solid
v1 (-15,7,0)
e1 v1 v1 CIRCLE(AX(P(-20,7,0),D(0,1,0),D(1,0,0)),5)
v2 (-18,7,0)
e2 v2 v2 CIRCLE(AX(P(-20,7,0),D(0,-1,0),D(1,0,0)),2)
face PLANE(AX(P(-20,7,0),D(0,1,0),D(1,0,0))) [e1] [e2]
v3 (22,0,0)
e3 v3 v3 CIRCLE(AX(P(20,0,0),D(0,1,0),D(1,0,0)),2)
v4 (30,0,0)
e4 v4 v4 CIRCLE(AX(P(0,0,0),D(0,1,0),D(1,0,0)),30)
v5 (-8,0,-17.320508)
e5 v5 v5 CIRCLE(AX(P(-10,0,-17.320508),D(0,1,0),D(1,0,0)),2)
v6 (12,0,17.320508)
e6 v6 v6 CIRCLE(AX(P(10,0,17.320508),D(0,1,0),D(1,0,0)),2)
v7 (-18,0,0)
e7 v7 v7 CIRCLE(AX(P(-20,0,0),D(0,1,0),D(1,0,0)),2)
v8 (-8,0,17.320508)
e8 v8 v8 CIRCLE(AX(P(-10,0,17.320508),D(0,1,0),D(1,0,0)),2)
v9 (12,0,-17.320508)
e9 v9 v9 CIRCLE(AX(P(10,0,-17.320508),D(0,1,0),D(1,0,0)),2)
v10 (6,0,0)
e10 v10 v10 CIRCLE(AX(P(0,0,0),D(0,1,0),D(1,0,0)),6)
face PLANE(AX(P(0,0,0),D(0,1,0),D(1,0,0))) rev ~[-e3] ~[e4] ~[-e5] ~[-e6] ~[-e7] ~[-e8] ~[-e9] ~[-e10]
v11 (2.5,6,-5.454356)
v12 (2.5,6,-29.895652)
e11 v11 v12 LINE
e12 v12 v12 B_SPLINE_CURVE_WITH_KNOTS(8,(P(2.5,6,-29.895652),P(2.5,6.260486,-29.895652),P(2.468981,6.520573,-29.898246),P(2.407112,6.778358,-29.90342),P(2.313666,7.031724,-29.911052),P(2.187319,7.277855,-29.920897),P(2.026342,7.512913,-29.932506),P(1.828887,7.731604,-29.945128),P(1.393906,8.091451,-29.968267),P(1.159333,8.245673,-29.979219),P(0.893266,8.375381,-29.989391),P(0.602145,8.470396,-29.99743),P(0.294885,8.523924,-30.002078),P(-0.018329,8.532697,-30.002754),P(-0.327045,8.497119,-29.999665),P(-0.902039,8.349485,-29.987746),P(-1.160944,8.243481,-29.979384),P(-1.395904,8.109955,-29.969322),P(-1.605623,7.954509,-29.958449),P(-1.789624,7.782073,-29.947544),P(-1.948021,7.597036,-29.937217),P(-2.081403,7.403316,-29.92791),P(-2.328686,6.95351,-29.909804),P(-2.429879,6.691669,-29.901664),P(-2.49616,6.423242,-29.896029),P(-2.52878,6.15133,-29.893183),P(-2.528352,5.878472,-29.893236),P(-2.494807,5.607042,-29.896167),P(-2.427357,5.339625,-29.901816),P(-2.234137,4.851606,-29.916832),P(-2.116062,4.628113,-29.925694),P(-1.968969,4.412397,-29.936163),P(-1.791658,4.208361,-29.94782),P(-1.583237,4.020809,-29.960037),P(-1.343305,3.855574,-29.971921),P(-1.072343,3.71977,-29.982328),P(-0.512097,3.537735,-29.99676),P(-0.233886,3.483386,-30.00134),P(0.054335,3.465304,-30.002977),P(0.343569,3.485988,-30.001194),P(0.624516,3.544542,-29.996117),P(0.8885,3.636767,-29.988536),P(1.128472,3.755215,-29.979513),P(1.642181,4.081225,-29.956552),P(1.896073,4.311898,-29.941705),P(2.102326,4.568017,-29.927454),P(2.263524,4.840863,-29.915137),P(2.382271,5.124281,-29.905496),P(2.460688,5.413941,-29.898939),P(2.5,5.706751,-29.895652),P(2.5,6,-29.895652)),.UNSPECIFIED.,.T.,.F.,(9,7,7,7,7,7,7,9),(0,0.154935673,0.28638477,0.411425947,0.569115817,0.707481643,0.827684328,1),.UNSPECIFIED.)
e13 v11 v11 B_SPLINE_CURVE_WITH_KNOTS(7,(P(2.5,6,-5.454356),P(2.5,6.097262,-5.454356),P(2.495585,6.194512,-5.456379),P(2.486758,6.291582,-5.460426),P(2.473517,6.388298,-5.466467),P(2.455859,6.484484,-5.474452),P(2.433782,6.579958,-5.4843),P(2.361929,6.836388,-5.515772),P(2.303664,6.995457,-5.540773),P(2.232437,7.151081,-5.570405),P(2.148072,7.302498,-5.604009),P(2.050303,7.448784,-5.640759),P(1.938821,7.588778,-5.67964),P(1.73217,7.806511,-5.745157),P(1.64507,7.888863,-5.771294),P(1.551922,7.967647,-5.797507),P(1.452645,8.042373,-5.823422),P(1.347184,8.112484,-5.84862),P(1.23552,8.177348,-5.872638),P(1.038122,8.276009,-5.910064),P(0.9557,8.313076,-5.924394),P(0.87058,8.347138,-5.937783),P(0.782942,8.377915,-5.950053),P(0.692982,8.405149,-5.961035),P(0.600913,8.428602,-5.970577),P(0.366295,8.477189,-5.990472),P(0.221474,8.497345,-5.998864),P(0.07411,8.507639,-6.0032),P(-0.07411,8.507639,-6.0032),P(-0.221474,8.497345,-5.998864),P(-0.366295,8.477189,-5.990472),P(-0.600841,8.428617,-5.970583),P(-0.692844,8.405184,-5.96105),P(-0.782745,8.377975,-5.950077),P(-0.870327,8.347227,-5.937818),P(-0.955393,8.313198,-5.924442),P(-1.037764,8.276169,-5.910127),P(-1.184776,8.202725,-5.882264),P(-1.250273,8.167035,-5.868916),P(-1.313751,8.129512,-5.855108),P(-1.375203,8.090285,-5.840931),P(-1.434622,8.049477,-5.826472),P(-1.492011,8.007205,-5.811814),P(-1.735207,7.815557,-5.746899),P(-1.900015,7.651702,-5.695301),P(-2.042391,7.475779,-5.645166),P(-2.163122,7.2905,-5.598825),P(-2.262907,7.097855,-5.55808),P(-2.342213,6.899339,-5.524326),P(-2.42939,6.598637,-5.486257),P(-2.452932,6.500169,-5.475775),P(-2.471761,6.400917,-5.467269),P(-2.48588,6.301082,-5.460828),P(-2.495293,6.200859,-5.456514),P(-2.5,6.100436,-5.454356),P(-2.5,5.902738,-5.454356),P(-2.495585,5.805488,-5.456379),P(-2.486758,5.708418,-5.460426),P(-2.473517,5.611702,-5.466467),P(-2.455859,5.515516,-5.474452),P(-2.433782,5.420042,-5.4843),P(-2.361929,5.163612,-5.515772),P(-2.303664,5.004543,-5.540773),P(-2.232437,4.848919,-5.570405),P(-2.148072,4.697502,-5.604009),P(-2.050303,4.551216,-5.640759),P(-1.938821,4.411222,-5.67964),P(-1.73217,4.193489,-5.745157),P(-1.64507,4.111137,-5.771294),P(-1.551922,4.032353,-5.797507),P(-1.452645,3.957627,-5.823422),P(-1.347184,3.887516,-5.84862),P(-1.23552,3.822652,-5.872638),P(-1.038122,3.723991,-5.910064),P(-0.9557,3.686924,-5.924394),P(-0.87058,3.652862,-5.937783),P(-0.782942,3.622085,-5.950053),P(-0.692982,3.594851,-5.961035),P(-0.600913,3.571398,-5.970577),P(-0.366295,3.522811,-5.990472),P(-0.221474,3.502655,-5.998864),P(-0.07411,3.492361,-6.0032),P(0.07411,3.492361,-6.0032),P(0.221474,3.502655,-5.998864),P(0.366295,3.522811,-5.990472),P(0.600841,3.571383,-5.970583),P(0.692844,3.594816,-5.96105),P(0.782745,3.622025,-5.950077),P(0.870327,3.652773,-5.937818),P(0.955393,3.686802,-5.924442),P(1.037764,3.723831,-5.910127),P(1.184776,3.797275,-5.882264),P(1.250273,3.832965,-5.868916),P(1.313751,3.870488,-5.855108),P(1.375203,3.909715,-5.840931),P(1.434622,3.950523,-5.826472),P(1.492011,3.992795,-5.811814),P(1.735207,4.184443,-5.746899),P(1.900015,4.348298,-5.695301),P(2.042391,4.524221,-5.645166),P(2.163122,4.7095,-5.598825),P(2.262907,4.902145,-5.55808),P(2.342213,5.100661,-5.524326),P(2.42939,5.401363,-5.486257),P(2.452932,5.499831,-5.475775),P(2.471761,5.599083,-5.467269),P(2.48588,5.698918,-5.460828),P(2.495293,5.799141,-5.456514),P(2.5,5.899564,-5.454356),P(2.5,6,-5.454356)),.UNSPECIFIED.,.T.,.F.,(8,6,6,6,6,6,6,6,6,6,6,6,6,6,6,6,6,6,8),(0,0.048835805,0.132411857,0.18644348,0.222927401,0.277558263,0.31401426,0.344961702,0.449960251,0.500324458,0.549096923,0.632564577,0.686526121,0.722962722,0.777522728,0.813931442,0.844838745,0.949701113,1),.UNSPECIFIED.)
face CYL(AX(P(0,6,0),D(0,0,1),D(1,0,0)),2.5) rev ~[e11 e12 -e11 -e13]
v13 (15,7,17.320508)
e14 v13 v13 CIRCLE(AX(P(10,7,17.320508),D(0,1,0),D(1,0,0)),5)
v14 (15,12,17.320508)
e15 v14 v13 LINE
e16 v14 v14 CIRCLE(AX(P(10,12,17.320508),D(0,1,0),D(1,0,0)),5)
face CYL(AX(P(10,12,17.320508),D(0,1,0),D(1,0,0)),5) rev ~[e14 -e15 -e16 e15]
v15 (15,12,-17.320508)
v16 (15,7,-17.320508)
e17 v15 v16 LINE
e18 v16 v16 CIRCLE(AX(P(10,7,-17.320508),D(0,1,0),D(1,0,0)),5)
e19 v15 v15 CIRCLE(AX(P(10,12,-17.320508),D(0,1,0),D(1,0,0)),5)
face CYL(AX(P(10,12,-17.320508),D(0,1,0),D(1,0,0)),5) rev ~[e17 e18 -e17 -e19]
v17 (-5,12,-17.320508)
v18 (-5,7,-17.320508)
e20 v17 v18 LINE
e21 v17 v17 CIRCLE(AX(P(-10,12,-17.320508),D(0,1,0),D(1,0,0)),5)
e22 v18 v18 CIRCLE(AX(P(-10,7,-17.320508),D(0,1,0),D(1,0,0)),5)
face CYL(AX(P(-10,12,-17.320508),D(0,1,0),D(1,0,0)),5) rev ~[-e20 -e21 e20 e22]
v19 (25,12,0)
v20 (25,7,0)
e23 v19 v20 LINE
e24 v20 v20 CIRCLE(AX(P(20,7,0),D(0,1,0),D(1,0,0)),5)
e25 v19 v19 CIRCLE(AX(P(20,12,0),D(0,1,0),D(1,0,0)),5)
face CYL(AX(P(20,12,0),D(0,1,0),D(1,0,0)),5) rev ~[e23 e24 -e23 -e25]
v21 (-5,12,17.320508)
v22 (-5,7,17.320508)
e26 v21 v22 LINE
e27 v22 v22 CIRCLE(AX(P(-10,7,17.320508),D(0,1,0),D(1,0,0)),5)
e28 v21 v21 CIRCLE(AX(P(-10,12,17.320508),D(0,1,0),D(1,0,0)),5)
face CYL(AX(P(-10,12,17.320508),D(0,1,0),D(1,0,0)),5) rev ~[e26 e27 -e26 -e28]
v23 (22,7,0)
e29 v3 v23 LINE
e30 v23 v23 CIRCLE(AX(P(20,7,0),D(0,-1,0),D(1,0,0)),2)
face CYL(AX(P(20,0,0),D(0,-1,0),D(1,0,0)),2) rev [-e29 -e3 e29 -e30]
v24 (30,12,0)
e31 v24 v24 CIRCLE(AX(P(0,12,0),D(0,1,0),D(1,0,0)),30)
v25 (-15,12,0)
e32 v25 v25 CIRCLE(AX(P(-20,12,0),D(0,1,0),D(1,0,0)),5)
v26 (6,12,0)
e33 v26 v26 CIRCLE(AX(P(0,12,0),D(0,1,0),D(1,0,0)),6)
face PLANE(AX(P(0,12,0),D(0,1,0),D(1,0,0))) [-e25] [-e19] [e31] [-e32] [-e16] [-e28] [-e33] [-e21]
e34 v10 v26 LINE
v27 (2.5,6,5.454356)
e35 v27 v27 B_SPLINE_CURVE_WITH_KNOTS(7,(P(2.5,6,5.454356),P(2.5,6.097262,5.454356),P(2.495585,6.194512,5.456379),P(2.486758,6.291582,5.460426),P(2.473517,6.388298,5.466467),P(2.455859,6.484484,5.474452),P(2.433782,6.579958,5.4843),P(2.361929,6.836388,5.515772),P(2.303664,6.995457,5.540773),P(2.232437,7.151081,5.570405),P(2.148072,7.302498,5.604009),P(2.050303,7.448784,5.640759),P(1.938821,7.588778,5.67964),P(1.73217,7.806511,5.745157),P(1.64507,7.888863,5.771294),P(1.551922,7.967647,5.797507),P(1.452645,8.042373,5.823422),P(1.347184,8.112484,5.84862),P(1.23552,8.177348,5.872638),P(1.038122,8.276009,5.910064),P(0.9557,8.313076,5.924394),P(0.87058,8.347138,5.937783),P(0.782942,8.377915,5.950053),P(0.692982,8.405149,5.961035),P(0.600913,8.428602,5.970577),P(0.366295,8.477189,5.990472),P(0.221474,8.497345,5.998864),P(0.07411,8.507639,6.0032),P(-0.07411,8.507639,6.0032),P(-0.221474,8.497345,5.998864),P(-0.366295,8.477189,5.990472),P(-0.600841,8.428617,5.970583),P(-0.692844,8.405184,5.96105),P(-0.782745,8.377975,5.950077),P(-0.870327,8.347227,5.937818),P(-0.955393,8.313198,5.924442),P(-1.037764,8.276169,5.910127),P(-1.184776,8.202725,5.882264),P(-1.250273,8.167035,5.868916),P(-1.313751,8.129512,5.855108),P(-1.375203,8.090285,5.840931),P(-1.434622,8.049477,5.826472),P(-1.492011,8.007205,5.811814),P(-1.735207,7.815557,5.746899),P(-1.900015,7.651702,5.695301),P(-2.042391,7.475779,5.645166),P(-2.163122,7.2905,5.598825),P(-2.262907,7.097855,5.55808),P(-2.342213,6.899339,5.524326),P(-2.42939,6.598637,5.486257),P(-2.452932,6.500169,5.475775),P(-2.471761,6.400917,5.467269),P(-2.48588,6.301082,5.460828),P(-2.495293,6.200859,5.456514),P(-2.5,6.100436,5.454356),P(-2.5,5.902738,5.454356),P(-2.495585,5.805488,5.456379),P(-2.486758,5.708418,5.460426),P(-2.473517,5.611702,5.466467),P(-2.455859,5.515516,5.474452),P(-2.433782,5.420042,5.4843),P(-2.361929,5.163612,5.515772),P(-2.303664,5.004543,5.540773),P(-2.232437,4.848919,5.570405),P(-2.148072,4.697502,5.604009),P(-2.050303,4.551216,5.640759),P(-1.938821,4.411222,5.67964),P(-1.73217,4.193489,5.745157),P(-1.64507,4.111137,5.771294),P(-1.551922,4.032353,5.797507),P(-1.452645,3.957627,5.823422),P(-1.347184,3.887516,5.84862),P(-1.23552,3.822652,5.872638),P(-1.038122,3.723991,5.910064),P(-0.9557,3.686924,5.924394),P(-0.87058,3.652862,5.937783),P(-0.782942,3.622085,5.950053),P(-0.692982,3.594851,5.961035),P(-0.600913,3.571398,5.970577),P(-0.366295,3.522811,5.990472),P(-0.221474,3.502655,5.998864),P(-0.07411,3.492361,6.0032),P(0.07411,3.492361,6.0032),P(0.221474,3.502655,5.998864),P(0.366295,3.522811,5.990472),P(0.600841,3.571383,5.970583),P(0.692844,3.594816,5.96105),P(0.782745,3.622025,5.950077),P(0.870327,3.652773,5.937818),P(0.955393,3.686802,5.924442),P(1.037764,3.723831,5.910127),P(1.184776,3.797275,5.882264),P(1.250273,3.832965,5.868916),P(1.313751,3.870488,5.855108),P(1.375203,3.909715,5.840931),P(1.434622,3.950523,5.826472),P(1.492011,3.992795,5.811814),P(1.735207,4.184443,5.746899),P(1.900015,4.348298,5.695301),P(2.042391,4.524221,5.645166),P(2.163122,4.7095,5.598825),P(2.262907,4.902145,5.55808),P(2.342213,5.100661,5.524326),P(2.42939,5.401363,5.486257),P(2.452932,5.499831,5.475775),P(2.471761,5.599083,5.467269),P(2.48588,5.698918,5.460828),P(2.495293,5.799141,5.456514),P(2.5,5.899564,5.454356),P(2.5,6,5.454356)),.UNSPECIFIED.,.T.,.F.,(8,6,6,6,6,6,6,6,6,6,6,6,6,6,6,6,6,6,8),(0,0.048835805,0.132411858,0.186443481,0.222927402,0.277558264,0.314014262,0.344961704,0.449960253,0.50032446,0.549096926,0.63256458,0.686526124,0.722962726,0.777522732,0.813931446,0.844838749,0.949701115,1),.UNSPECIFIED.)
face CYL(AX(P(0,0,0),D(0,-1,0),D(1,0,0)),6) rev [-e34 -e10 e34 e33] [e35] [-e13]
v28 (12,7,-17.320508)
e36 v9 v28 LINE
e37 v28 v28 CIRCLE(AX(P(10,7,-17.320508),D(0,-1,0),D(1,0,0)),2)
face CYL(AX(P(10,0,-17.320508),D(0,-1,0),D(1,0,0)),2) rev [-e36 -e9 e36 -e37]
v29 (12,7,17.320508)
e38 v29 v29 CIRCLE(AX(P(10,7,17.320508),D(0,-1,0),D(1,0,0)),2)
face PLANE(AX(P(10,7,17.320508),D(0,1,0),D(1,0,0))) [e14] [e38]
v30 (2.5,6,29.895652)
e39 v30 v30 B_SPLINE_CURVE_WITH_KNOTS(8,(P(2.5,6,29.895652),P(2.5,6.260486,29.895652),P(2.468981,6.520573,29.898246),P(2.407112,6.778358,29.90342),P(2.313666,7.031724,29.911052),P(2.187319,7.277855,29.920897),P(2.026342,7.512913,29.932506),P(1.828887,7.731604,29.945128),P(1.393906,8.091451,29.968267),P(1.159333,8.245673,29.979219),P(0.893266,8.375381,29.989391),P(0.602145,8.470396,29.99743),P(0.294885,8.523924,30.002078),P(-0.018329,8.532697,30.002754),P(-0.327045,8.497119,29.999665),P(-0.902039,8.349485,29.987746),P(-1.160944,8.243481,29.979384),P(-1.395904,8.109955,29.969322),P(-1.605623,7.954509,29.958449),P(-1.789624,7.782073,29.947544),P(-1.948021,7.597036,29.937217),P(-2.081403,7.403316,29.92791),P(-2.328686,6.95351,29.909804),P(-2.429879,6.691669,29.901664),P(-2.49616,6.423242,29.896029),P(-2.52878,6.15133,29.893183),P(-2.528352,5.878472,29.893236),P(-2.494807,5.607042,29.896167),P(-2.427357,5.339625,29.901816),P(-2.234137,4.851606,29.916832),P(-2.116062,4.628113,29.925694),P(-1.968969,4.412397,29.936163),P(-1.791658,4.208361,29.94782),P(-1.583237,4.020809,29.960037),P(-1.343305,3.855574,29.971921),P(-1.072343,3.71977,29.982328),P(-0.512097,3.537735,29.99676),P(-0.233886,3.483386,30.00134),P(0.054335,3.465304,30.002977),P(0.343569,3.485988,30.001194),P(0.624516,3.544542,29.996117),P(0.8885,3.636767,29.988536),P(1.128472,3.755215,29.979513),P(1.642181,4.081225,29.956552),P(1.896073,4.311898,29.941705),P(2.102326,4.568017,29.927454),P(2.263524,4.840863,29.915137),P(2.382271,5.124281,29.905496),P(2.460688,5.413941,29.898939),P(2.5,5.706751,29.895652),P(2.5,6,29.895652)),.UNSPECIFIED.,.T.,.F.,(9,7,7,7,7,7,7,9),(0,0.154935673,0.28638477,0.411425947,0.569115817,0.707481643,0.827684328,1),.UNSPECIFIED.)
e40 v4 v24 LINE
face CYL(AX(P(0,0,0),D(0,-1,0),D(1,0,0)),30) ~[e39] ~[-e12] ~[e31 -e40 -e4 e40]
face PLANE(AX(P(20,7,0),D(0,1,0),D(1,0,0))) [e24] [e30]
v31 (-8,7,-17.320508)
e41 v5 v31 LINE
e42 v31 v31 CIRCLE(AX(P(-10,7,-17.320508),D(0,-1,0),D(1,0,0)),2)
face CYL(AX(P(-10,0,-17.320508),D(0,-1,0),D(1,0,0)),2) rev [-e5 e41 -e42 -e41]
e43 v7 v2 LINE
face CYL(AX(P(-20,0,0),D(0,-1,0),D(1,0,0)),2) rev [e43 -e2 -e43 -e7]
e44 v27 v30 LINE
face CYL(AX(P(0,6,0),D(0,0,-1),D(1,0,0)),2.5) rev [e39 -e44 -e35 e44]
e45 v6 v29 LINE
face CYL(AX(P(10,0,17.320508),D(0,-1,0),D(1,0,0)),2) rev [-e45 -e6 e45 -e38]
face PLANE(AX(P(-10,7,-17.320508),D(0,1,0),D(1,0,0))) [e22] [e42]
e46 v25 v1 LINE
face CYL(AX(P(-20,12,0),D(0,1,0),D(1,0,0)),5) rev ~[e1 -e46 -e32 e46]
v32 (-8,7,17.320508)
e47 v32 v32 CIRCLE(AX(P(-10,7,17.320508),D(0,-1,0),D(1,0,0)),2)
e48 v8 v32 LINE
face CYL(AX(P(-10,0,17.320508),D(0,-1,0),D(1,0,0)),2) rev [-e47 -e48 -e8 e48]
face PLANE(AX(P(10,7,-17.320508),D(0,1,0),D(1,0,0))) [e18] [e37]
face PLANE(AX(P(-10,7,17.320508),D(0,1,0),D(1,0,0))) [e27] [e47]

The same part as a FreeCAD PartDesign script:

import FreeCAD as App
import Part
import Sketcher
Q = App.Units.Quantity

doc = App.newDocument("Part")
params = doc.addObject("Spreadsheet::Sheet", "Params")
for row, (alias, value) in enumerate([
    ("sketch1_diameter", "60 mm"),
    ("sketch1_diameter2", "4 mm"),
    ("sketch1_diameter3", "12 mm"),
    ("pad1_length", "12 mm"),
    ("sketch2_diameter", "5 mm"),
    ("sketch3_diameter", "10 mm"),
    ("pocket2_length", "5 mm"),
], start=1):
    params.set(f"A{row}", alias)
    params.set(f"B{row}", "=" + value)
    params.setAlias(f"B{row}", alias)

body = doc.addObject("PartDesign::Body", "Body")

# Sketch on XZ plane
sketch1 = body.newObject("Sketcher::SketchObject", "Sketch")
sketch1.AttachmentSupport = (doc.getObject("XZ_Plane"), [""])
sketch1.MapMode = "FlatFace"
sketch1.addGeometry([
    Part.Circle(App.Vector(0, 0, 0), App.Vector(0, 0, 1), 30),  # 0
    Part.Circle(App.Vector(-10, 17.3, 0), App.Vector(0, 0, 1), 2),  # 1
    Part.Circle(App.Vector(10, 17.3, 0), App.Vector(0, 0, 1), 2),  # 2
    Part.Circle(App.Vector(-20, 0, 0), App.Vector(0, 0, 1), 2),  # 3
    Part.Circle(App.Vector(-10, -17.3, 0), App.Vector(0, 0, 1), 2),  # 4
    Part.Circle(App.Vector(0, 0, 0), App.Vector(0, 0, 1), 6),  # 5
    Part.Circle(App.Vector(20, 0, 0), App.Vector(0, 0, 1), 2),  # 6
    Part.Circle(App.Vector(10, -17.3, 0), App.Vector(0, 0, 1), 2),  # 7
], False)
sketch1.addConstraint([
    Sketcher.Constraint("Coincident", 0, 3, -1, 1),
    Sketcher.Constraint("Coincident", 5, 3, -1, 1),
    Sketcher.Constraint("Equal", 1, 2),
    Sketcher.Constraint("Equal", 2, 3),
    Sketcher.Constraint("Equal", 3, 4),
    Sketcher.Constraint("Equal", 4, 6),
    Sketcher.Constraint("Equal", 6, 7),
    Sketcher.Constraint("Symmetric", 2, 3, 4, 3, -1, 1),
    Sketcher.Constraint("Symmetric", 3, 3, 6, 3, -1, 1),
    Sketcher.Constraint("Symmetric", 1, 3, 7, 3, -1, 1),
    Sketcher.Constraint("Symmetric", 1, 3, 2, 3, -2),
    Sketcher.Constraint("PointOnObject", 3, 3, -1),
    Sketcher.Constraint("Diameter", 0, Q("60 mm")),
    Sketcher.Constraint("Diameter", 1, Q("4 mm")),
    Sketcher.Constraint("Diameter", 5, Q("12 mm")),
    Sketcher.Constraint("DistanceX", 1, 3, -1, 1, Q("10 mm")),
    Sketcher.Constraint("DistanceX", 3, 3, -1, 1, Q("20 mm")),
    Sketcher.Constraint("DistanceY", -1, 1, 1, 3, Q("17.320508 mm")),
])
sketch1.setExpression("Constraints[12]", "Params.sketch1_diameter")
sketch1.setExpression("Constraints[13]", "Params.sketch1_diameter2")
sketch1.setExpression("Constraints[14]", "Params.sketch1_diameter3")
pad1 = body.newObject("PartDesign::Pad", "Pad")
pad1.Profile = sketch1
pad1.setExpression("Length", "Params.pad1_length")
pad1.Reversed = True

# Sketch on XY plane
sketch2 = body.newObject("Sketcher::SketchObject", "Sketch001")
sketch2.AttachmentSupport = (doc.getObject("XY_Plane"), [""])
sketch2.MapMode = "FlatFace"
sketch2.addGeometry(Part.Circle(App.Vector(0, 6, 0), App.Vector(0, 0, 1), 2.5), False)
sketch2.addConstraint([
    Sketcher.Constraint("PointOnObject", 0, 3, -2),
    Sketcher.Constraint("Diameter", 0, Q("5 mm")),
    Sketcher.Constraint("DistanceY", -1, 1, 0, 3, Q("6 mm")),
])
sketch2.setExpression("Constraints[1]", "Params.sketch2_diameter")
pocket1 = body.newObject("PartDesign::Pocket", "Pocket")
pocket1.Profile = sketch2
pocket1.Type = "ThroughAll"
pocket1.Midplane = True

# Sketch on XZ plane
sketch3 = body.newObject("Sketcher::SketchObject", "Sketch002")
sketch3.AttachmentSupport = (doc.getObject("XZ_Plane"), [""])
sketch3.MapMode = "FlatFace"
sketch3.AttachmentOffset = App.Placement(App.Vector(0, 0, -12), App.Rotation())
sketch3.addGeometry([
    Part.Circle(App.Vector(-10, -17, 0), App.Vector(0, 0, 1), 5),  # 0
    Part.Circle(App.Vector(10, -17, 0), App.Vector(0, 0, 1), 5),  # 1
    Part.Circle(App.Vector(20, 0, 0), App.Vector(0, 0, 1), 5),  # 2
    Part.Circle(App.Vector(10, 17, 0), App.Vector(0, 0, 1), 5),  # 3
    Part.Circle(App.Vector(-10, 17, 0), App.Vector(0, 0, 1), 5),  # 4
    Part.Circle(App.Vector(-20, 0, 0), App.Vector(0, 0, 1), 5),  # 5
], False)
sketch3.addConstraint([
    Sketcher.Constraint("Equal", 0, 1),
    Sketcher.Constraint("Equal", 1, 2),
    Sketcher.Constraint("Equal", 2, 3),
    Sketcher.Constraint("Equal", 3, 4),
    Sketcher.Constraint("Equal", 4, 5),
    Sketcher.Constraint("Symmetric", 0, 3, 3, 3, -1, 1),
    Sketcher.Constraint("Symmetric", 1, 3, 4, 3, -1, 1),
    Sketcher.Constraint("Symmetric", 2, 3, 5, 3, -1, 1),
    Sketcher.Constraint("Symmetric", 0, 3, 1, 3, -2),
    Sketcher.Constraint("PointOnObject", 2, 3, -1),
    Sketcher.Constraint("Diameter", 0, Q("10 mm")),
    Sketcher.Constraint("DistanceX", 0, 3, -1, 1, Q("10 mm")),
    Sketcher.Constraint("DistanceX", -1, 1, 2, 3, Q("20 mm")),
    Sketcher.Constraint("DistanceY", 0, 3, -1, 1, Q("17.320508 mm")),
])
sketch3.setExpression("Constraints[10]", "Params.sketch3_diameter")
pocket2 = body.newObject("PartDesign::Pocket", "Pocket001")
pocket2.Profile = sketch3
pocket2.setExpression("Length", "Params.pocket2_length")
pocket2.Reversed = True

doc.recompute()
